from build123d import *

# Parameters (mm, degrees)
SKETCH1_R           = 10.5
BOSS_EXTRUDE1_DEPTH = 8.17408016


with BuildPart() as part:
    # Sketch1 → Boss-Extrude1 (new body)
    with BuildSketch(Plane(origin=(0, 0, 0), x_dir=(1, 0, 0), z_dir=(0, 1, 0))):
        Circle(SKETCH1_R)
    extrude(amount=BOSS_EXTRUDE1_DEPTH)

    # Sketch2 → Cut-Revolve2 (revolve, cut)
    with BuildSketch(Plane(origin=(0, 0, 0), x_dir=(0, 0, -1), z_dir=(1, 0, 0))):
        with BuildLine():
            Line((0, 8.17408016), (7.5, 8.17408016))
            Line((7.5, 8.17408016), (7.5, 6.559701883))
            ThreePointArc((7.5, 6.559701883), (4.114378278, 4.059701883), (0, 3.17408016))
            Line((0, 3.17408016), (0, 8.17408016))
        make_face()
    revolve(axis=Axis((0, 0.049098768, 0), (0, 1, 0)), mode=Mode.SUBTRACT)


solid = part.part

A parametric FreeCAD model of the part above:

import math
import FreeCAD as App
import Part
import Sketcher

doc = App.newDocument("Part")
body = doc.addObject("PartDesign::Body", "Body")

sketch1 = body.newObject("Sketcher::SketchObject", "Sketch")
sketch1.AttachmentSupport = (doc.getObject("XZ_Plane"), [""])
sketch1.MapMode = "FlatFace"
sketch1.addGeometry(Part.Circle(App.Vector(0, 0, 0), App.Vector(0, 0, 1), 10), False)
sketch1.addConstraint(Sketcher.Constraint("Coincident", 0, 3, -1, 1))
sketch1.addConstraint(Sketcher.Constraint("Diameter", 0, 21.0))
pad1 = body.newObject("PartDesign::Pad", "Pad")
pad1.Profile = sketch1
pad1.Length = 8.17408
pad1.Reversed = True

sketch2 = body.newObject("Sketcher::SketchObject", "Sketch001")
sketch2.AttachmentSupport = (doc.getObject("YZ_Plane"), [""])
sketch2.MapMode = "FlatFace"
sketch2.addGeometry(Part.LineSegment(App.Vector(8.2, -7.5, 0), App.Vector(8.2, 0, 0)), False)
sketch2.addGeometry(Part.LineSegment(App.Vector(8.2, 0, 0), App.Vector(3.2, 0, 0)), False)
sketch2.addGeometry(Part.ArcOfCircle(Part.Circle(App.Vector(13.2, 0, 0), App.Vector(0, 0, 1), 10), math.radians(-180), math.radians(-131)), False)
sketch2.addGeometry(Part.LineSegment(App.Vector(6.6, -7.5, 0), App.Vector(8.2, -7.5, 0)), False)
sketch2.addConstraint(Sketcher.Constraint("Coincident", 0, 2, 1, 1))
sketch2.addConstraint(Sketcher.Constraint("Coincident", 1, 2, 2, 1))
sketch2.addConstraint(Sketcher.Constraint("Coincident", 2, 2, 3, 1))
sketch2.addConstraint(Sketcher.Constraint("Coincident", 3, 2, 0, 1))
sketch2.addConstraint(Sketcher.Constraint("Vertical", 0))
sketch2.addConstraint(Sketcher.Constraint("Horizontal", 1))
sketch2.addConstraint(Sketcher.Constraint("Horizontal", 3))
sketch2.addConstraint(Sketcher.Constraint("PointOnObject", 2, 3, -1))
sketch2.addConstraint(Sketcher.Constraint("PointOnObject", 0, 2, -1))
sketch2.addConstraint(Sketcher.Constraint("Radius", 2, 10.0))
sketch2.addConstraint(Sketcher.Constraint("DistanceX", 1, 2, 1, 1, 5.0))
sketch2.addConstraint(Sketcher.Constraint("DistanceY", 0, 1, 0, 2, 7.5))
sketch2.addConstraint(Sketcher.Constraint("DistanceX", -1, 1, 2, 2, 6.559702))
groove = body.newObject("PartDesign::Groove", "Groove")
groove.Profile = sketch2
groove.ReferenceAxis = (sketch2, ["H_Axis"])
groove.Angle = 360

doc.recompute()
